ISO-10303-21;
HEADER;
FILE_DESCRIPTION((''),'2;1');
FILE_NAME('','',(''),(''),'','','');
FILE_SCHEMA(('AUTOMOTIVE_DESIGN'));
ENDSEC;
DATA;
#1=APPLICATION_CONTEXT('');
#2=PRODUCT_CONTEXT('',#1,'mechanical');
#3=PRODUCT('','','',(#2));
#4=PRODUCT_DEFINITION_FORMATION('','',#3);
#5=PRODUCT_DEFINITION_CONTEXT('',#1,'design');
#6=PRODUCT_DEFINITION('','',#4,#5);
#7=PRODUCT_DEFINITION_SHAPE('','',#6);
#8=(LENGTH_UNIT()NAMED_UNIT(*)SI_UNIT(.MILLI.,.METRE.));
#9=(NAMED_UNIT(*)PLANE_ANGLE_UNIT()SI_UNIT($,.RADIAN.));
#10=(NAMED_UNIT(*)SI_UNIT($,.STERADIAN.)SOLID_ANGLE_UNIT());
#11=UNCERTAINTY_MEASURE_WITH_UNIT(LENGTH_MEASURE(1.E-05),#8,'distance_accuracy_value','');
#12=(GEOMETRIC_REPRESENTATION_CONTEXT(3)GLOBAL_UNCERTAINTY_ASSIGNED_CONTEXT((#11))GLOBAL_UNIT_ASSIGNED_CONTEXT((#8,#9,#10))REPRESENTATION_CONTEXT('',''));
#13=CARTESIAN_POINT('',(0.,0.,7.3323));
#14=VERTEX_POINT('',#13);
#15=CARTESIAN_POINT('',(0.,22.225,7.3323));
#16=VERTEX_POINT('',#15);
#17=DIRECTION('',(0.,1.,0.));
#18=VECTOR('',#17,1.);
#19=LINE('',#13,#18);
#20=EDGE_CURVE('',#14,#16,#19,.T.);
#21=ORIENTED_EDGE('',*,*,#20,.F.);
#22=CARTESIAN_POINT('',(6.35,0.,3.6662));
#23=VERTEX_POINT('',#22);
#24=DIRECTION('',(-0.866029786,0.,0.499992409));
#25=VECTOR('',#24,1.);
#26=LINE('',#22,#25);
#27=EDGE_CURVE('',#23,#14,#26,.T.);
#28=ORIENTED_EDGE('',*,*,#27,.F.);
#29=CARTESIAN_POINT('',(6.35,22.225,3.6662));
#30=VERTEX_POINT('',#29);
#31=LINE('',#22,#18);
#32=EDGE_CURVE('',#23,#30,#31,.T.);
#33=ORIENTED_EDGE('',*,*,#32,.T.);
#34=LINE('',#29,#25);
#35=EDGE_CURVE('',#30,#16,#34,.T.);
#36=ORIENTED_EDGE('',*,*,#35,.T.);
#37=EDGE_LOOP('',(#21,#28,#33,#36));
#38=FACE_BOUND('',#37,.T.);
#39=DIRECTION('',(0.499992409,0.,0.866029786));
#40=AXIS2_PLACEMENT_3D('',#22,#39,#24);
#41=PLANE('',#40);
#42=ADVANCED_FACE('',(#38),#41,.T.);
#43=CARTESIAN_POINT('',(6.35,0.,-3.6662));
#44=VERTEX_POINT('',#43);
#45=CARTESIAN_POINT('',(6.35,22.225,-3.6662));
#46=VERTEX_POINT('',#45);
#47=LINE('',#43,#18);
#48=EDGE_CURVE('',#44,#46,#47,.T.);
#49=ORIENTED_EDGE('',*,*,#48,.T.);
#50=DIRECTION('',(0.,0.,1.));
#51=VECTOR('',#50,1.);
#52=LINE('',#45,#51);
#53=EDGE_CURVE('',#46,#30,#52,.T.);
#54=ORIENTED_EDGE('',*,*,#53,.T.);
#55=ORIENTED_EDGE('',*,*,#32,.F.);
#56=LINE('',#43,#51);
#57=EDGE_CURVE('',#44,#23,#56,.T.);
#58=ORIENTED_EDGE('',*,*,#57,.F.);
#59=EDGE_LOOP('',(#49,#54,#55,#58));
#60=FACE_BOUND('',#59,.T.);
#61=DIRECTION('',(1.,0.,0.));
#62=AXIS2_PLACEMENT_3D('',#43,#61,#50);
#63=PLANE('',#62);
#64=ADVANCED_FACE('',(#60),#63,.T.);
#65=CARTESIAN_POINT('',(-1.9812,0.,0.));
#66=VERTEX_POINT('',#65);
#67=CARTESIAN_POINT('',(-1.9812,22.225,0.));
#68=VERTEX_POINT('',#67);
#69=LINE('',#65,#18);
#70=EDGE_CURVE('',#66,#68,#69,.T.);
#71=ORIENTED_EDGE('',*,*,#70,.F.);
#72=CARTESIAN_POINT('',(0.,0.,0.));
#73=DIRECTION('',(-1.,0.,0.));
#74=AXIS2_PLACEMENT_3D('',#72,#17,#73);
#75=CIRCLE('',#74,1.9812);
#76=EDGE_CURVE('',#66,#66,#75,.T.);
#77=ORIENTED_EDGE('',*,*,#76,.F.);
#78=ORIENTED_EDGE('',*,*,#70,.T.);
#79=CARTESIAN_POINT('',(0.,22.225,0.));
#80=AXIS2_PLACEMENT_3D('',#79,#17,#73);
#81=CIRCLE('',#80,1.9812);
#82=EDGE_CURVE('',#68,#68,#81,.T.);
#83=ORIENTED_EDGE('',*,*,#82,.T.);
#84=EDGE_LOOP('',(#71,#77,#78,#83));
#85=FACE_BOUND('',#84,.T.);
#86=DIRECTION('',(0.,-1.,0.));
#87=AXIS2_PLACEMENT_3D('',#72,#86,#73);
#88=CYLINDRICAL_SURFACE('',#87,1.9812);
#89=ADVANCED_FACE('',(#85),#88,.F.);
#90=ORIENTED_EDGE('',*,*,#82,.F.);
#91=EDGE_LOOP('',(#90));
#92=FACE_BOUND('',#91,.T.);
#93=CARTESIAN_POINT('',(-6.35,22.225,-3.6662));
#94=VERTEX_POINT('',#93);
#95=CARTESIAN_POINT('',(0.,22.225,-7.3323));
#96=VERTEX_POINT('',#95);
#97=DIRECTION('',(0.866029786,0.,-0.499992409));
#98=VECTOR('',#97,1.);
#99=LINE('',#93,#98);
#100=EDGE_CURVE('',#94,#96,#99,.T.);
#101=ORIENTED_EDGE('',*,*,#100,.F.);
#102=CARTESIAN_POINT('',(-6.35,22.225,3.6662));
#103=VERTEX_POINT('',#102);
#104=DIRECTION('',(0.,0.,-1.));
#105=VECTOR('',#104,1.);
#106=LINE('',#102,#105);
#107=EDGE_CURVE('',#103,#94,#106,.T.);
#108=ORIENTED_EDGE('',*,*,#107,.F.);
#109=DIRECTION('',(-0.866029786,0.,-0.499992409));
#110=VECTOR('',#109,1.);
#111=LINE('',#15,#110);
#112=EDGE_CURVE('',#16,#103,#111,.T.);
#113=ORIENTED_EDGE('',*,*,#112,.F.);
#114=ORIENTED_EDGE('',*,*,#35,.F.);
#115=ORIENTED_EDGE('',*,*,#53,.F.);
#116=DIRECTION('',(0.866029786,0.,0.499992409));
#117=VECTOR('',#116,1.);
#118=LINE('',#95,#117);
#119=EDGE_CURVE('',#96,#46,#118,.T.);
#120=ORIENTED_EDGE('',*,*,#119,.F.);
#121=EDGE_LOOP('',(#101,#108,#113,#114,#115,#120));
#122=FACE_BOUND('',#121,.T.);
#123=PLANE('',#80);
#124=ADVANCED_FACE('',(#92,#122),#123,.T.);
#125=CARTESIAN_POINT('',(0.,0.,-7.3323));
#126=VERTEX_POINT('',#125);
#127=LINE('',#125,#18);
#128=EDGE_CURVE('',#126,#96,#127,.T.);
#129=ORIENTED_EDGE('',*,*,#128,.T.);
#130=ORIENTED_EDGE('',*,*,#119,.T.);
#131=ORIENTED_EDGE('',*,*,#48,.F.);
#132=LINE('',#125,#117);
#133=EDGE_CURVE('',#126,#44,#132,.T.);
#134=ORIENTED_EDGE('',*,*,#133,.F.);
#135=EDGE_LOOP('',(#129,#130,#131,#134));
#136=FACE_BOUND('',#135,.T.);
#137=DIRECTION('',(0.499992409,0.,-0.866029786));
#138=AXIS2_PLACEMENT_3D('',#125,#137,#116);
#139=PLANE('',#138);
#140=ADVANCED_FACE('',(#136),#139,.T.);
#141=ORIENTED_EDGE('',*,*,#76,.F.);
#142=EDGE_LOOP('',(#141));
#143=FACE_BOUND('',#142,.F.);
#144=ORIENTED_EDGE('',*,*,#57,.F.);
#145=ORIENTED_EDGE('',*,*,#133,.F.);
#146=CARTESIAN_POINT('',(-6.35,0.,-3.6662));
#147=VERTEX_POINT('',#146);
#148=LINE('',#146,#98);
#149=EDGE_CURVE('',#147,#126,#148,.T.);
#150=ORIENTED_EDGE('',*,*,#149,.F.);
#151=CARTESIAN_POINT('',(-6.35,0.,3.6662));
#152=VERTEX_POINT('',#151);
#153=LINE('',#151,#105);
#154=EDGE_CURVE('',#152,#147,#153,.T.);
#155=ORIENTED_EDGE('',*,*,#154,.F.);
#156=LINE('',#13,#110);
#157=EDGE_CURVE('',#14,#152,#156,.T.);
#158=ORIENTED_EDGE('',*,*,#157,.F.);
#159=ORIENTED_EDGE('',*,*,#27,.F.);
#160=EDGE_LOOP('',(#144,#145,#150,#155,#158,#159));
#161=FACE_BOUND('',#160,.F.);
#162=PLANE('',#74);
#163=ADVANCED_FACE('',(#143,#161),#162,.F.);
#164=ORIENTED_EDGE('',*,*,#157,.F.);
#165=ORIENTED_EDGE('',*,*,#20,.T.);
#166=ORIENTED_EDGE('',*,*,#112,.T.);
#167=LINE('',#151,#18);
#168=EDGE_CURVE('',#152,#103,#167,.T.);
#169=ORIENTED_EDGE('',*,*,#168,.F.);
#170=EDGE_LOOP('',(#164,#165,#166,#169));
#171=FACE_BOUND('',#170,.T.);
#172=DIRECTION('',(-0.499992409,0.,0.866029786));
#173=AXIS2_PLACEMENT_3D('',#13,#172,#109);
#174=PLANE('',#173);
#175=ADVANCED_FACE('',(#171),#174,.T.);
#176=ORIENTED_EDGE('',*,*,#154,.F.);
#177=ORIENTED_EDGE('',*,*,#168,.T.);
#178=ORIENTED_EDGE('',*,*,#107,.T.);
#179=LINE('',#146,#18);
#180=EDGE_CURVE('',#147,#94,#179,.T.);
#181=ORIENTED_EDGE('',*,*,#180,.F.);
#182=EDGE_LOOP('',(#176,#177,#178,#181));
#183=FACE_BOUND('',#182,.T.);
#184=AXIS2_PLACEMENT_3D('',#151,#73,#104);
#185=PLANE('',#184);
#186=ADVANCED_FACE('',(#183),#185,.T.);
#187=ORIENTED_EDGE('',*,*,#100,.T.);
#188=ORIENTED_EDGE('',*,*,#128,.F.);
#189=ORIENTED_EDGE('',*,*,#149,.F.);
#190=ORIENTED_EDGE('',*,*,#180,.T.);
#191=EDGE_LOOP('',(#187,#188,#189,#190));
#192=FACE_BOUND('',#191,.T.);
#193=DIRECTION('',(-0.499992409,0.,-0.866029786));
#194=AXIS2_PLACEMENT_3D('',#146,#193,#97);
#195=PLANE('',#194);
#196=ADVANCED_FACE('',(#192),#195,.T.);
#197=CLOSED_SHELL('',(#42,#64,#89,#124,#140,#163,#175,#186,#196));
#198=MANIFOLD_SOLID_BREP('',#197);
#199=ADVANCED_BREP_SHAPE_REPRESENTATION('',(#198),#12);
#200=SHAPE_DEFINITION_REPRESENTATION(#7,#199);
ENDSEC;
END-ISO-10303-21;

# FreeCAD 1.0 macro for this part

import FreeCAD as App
import Part
import Sketcher
Q = App.Units.Quantity

doc = App.newDocument("Part")
body = doc.addObject("PartDesign::Body", "Body")

# Sketch on XZ plane
sketch1 = doc.addObject("Sketcher::SketchObject", "Sketch")
body.addObject(sketch1)
sketch1.AttachmentSupport = (doc.XZ_Plane, [""])
sketch1.MapMode = "FlatFace"
sketch1.addGeometry(Part.LineSegment(App.Vector(-6.35, -3.6662, 0), App.Vector(-6.35, 3.6662, 0)), False)
sketch1.addGeometry(Part.LineSegment(App.Vector(-6.35, 3.6662, 0), App.Vector(0, 7.3323, 0)), False)
sketch1.addGeometry(Part.LineSegment(App.Vector(0, 7.3323, 0), App.Vector(6.35, 3.6662, 0)), False)
sketch1.addGeometry(Part.LineSegment(App.Vector(6.35, 3.6662, 0), App.Vector(6.35, -3.6662, 0)), False)
sketch1.addGeometry(Part.LineSegment(App.Vector(6.35, -3.6662, 0), App.Vector(0, -7.3323, 0)), False)
sketch1.addGeometry(Part.LineSegment(App.Vector(0, -7.3323, 0), App.Vector(-6.35, -3.6662, 0)), False)
sketch1.addGeometry(Part.Circle(App.Vector(0, 0, 0), App.Vector(0, 0, 1), 1.9812), False)
sketch1.addConstraint(Sketcher.Constraint("Coincident", 0, 2, 1, 1))
sketch1.addConstraint(Sketcher.Constraint("Coincident", 1, 2, 2, 1))
sketch1.addConstraint(Sketcher.Constraint("Coincident", 2, 2, 3, 1))
sketch1.addConstraint(Sketcher.Constraint("Coincident", 3, 2, 4, 1))
sketch1.addConstraint(Sketcher.Constraint("Coincident", 4, 2, 5, 1))
sketch1.addConstraint(Sketcher.Constraint("Coincident", 5, 2, 0, 1))
sketch1.addConstraint(Sketcher.Constraint("Vertical", 0))
sketch1.addConstraint(Sketcher.Constraint("Vertical", 3))
sketch1.addConstraint(Sketcher.Constraint("Coincident", 6, 3, -1, 1))
sketch1.addConstraint(Sketcher.Constraint("Symmetric", 0, 2, 3, 2, -1, 1))
sketch1.addConstraint(Sketcher.Constraint("Symmetric", 1, 2, 4, 2, -1, 1))
sketch1.addConstraint(Sketcher.Constraint("PointOnObject", 1, 2, -2))
sketch1.addConstraint(Sketcher.Constraint("Parallel", 2, 5))
sketch1.addConstraint(Sketcher.Constraint("Horizontal", 0, 2, 2, 2))
sketch1.addConstraint(Sketcher.Constraint("Diameter", 6, Q("0.156 in")))
sketch1.addConstraint(Sketcher.Constraint("DistanceX", 0, 2, 2, 2, Q("0.5 in")))
sketch1.addConstraint(Sketcher.Constraint("Angle", 1, Q("29.9995 deg")))
sketch1.addConstraint(Sketcher.Constraint("DistanceY", 3, 2, 1, 2, Q("0.433 in")))
pad1 = doc.addObject("PartDesign::Pad", "Pad")
body.addObject(pad1)
pad1.Profile = sketch1
pad1.Length = Q("0.875 in")
pad1.Reversed = True

doc.recompute()
